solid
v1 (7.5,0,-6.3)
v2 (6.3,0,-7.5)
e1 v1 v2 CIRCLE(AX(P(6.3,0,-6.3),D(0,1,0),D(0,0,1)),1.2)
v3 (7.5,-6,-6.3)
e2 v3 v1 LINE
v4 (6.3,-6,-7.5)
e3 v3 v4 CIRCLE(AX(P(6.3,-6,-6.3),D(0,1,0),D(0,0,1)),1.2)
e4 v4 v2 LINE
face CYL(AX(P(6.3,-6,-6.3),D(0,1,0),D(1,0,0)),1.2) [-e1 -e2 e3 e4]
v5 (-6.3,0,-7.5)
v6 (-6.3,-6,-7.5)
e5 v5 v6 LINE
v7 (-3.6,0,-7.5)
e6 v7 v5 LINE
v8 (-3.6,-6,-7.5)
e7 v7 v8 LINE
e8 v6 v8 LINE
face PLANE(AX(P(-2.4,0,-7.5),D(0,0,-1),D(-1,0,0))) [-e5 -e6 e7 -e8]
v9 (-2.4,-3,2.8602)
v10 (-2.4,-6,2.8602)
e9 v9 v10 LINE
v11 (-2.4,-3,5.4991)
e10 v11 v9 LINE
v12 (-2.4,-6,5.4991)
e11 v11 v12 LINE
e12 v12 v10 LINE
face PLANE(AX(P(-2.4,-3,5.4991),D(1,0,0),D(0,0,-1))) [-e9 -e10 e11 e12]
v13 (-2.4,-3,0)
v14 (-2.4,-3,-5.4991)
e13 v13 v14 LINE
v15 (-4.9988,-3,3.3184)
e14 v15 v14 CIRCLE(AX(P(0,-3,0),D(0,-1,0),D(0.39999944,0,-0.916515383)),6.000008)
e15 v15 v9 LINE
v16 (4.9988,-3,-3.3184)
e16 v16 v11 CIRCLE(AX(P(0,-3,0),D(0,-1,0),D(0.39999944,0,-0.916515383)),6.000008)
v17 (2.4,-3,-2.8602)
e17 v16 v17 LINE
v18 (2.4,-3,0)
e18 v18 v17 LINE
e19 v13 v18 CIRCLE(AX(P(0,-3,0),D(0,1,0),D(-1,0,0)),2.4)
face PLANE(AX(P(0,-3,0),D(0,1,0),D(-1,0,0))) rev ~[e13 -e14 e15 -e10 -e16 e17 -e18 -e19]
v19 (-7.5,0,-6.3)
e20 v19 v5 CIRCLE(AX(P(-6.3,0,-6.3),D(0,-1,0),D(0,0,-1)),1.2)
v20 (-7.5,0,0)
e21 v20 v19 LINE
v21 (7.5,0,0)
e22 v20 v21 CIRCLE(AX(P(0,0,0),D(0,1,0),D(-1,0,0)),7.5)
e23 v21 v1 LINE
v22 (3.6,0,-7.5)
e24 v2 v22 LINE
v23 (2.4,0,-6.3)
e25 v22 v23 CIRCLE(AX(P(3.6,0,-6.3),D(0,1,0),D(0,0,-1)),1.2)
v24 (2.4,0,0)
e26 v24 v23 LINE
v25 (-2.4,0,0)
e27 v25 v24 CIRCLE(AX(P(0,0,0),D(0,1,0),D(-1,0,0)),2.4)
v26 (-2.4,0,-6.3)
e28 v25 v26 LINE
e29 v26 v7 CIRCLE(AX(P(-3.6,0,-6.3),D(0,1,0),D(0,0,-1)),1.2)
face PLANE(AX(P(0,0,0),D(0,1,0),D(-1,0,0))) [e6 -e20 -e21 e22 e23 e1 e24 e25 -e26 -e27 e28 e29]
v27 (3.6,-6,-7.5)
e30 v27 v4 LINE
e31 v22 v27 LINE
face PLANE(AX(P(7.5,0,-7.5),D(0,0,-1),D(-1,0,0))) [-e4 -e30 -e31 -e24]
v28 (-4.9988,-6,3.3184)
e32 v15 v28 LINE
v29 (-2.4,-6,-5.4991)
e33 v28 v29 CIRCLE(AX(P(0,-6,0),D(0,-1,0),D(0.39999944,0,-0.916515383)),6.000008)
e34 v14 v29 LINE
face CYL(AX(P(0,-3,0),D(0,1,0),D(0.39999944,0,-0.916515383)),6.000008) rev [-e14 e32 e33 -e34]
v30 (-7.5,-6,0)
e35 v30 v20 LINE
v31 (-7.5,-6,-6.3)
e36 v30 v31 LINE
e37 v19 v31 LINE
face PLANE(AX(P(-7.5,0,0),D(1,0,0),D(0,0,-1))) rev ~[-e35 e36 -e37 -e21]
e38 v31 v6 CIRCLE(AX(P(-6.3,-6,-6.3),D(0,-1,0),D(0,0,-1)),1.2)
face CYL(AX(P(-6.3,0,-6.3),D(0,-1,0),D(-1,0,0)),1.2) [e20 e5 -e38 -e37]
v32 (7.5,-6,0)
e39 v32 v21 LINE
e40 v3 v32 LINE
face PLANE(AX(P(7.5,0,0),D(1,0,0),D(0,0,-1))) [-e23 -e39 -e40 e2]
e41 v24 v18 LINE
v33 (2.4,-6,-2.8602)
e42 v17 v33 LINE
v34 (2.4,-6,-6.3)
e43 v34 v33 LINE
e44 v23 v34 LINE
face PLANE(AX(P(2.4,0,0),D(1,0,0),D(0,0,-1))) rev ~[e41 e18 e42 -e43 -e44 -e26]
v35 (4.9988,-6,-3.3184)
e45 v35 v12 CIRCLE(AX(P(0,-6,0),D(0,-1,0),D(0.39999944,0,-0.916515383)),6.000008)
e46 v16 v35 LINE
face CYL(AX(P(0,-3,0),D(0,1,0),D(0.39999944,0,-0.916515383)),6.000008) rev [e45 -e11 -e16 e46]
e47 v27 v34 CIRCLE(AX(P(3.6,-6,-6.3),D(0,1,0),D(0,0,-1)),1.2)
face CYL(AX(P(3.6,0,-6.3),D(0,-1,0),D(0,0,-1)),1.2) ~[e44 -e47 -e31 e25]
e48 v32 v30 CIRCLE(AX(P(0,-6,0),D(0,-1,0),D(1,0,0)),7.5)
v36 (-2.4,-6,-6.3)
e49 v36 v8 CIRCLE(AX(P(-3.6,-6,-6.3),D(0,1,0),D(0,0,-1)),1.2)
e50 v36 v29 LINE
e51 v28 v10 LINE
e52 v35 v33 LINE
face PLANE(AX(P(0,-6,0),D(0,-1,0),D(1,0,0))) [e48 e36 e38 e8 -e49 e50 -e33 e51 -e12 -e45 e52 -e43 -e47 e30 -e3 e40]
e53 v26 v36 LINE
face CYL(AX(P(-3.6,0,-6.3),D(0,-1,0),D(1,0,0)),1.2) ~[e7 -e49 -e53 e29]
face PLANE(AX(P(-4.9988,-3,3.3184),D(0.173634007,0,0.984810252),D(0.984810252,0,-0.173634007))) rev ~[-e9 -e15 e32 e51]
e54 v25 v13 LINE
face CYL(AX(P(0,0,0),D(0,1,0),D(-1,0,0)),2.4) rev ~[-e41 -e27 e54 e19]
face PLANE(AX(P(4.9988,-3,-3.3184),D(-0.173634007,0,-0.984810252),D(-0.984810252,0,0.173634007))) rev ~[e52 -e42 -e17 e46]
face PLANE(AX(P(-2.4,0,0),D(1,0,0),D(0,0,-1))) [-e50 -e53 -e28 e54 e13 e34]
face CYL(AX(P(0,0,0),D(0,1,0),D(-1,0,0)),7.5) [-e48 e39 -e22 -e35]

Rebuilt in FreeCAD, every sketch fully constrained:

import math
import FreeCAD as App
import Part
import Sketcher
Q = App.Units.Quantity


def edges_at(feature, points):
    """Names of the edges that pass closest to the given points."""
    edges = feature.Shape.Edges
    near = lambda p: min(range(len(edges)), key=lambda i: edges[i].distToShape(Part.Vertex(*p))[0])
    return sorted({f"Edge{near(p) + 1}" for p in points})

doc = App.newDocument("Part")
params = doc.addObject("Spreadsheet::Sheet", "Params")
for row, (alias, value) in enumerate([
    ("sketch1_radius", "7.5 mm"),
    ("sketch1_radius2", "2.4 mm"),
    ("sketch1_height", "7.5 mm"),
    ("pad1_length", "3 mm"),
    ("sketch2_radius", "6 mm"),
    ("sketch2_radius2", "7.5 mm"),
    ("sketch2_width", "5.1 mm"),
    ("sketch2_height", "7.5 mm"),
    ("pad2_length", "3 mm"),
    ("fillet_radius", "1.2 mm"),
    ("fillet2_radius", "1.2 mm"),
    ("sketch3_radius", "6 mm"),
    ("pad3_length", "3 mm"),
], start=1):
    params.set(f"A{row}", alias)
    params.set(f"B{row}", "=" + value)
    params.setAlias(f"B{row}", alias)

body = doc.addObject("PartDesign::Body", "Body")

sketch1 = body.newObject("Sketcher::SketchObject", "Sketch")
sketch1.AttachmentSupport = (doc.getObject("XZ_Plane"), [""])
sketch1.MapMode = "FlatFace"
sketch1.addGeometry(Part.LineSegment(App.Vector(-7.5, -7.5, 0), App.Vector(-7.5, 0, 0)), False)
sketch1.addGeometry(Part.ArcOfCircle(Part.Circle(App.Vector(0, 0, 0), App.Vector(0, 0, 1), 7.5), math.radians(0), math.radians(180)), False)
sketch1.addGeometry(Part.LineSegment(App.Vector(7.5, 0, 0), App.Vector(7.5, -7.5, 0)), False)
sketch1.addGeometry(Part.LineSegment(App.Vector(7.5, -7.5, 0), App.Vector(2.4, -7.5, 0)), False)
sketch1.addGeometry(Part.LineSegment(App.Vector(2.4, -7.5, 0), App.Vector(2.4, 0, 0)), False)
sketch1.addGeometry(Part.ArcOfCircle(Part.Circle(App.Vector(0, 0, 0), App.Vector(0, 0, 1), 2.4), math.radians(0), math.radians(180)), False)
sketch1.addGeometry(Part.LineSegment(App.Vector(-2.4, 0, 0), App.Vector(-2.4, -7.5, 0)), False)
sketch1.addGeometry(Part.LineSegment(App.Vector(-2.4, -7.5, 0), App.Vector(-7.5, -7.5, 0)), False)
sketch1.addConstraint(Sketcher.Constraint("Tangent", 0, 2, 1, 2))
sketch1.addConstraint(Sketcher.Constraint("Tangent", 1, 1, 2, 1))
sketch1.addConstraint(Sketcher.Constraint("Coincident", 2, 2, 3, 1))
sketch1.addConstraint(Sketcher.Constraint("Coincident", 3, 2, 4, 1))
sketch1.addConstraint(Sketcher.Constraint("Tangent", 4, 2, 5, 1))
sketch1.addConstraint(Sketcher.Constraint("Tangent", 5, 2, 6, 1))
sketch1.addConstraint(Sketcher.Constraint("Coincident", 6, 2, 7, 1))
sketch1.addConstraint(Sketcher.Constraint("Coincident", 7, 2, 0, 1))
sketch1.addConstraint(Sketcher.Constraint("Vertical", 0))
sketch1.addConstraint(Sketcher.Constraint("Vertical", 2))
sketch1.addConstraint(Sketcher.Constraint("Horizontal", 3))
sketch1.addConstraint(Sketcher.Constraint("Vertical", 4))
sketch1.addConstraint(Sketcher.Constraint("Vertical", 6))
sketch1.addConstraint(Sketcher.Constraint("Horizontal", 7))
sketch1.addConstraint(Sketcher.Constraint("Coincident", 1, 3, -1, 1))
sketch1.addConstraint(Sketcher.Constraint("Coincident", 5, 3, -1, 1))
sketch1.addConstraint(Sketcher.Constraint("Horizontal", 3, 2, 6, 2))
sketch1.addConstraint(Sketcher.Constraint("Radius", 1, Q("7.5 mm")))
sketch1.addConstraint(Sketcher.Constraint("Radius", 5, Q("2.4 mm")))
sketch1.addConstraint(Sketcher.Constraint("DistanceY", 0, 1, 0, 2, Q("7.5 mm")))
sketch1.setExpression("Constraints[17]", "Params.sketch1_radius")
sketch1.setExpression("Constraints[18]", "Params.sketch1_radius2")
sketch1.setExpression("Constraints[19]", "Params.sketch1_height")
pad1 = body.newObject("PartDesign::Pad", "Pad")
pad1.Profile = sketch1
pad1.setExpression("Length", "Params.pad1_length")

sketch2 = body.newObject("Sketcher::SketchObject", "Sketch001")
sketch2.AttachmentSupport = (doc.getObject("XZ_Plane"), [""])
sketch2.MapMode = "FlatFace"
sketch2.AttachmentOffset = App.Placement(App.Vector(0, 0, 3), App.Rotation())
sketch2.addGeometry(Part.LineSegment(App.Vector(7.5, -7.5, 0), App.Vector(7.5, 0, 0)), False)
sketch2.addGeometry(Part.ArcOfCircle(Part.Circle(App.Vector(0, 0, 0), App.Vector(0, 0, 1), 7.5), math.radians(0), math.radians(180)), False)
sketch2.addGeometry(Part.LineSegment(App.Vector(-7.5, 0, 0), App.Vector(-7.5, -7.5, 0)), False)
sketch2.addGeometry(Part.LineSegment(App.Vector(-7.5, -7.5, 0), App.Vector(-2.4, -7.5, 0)), False)
sketch2.addGeometry(Part.LineSegment(App.Vector(-2.4, -7.5, 0), App.Vector(-2.4, -5.5, 0)), False)
sketch2.addGeometry(Part.ArcOfCircle(Part.Circle(App.Vector(0, 0, 0), App.Vector(0, 0, 1), 6), math.radians(-66), math.radians(246)), False)
sketch2.addGeometry(Part.LineSegment(App.Vector(2.4, -5.5, 0), App.Vector(2.4, -7.5, 0)), False)
sketch2.addGeometry(Part.LineSegment(App.Vector(2.4, -7.5, 0), App.Vector(7.5, -7.5, 0)), False)
sketch2.addConstraint(Sketcher.Constraint("Tangent", 0, 2, 1, 1))
sketch2.addConstraint(Sketcher.Constraint("Tangent", 1, 2, 2, 1))
sketch2.addConstraint(Sketcher.Constraint("Coincident", 2, 2, 3, 1))
sketch2.addConstraint(Sketcher.Constraint("Coincident", 3, 2, 4, 1))
sketch2.addConstraint(Sketcher.Constraint("Coincident", 4, 2, 5, 2))
sketch2.addConstraint(Sketcher.Constraint("Coincident", 5, 1, 6, 1))
sketch2.addConstraint(Sketcher.Constraint("Coincident", 6, 2, 7, 1))
sketch2.addConstraint(Sketcher.Constraint("Coincident", 7, 2, 0, 1))
sketch2.addConstraint(Sketcher.Constraint("Vertical", 0))
sketch2.addConstraint(Sketcher.Constraint("Vertical", 2))
sketch2.addConstraint(Sketcher.Constraint("Horizontal", 3))
sketch2.addConstraint(Sketcher.Constraint("Vertical", 4))
sketch2.addConstraint(Sketcher.Constraint("Vertical", 6))
sketch2.addConstraint(Sketcher.Constraint("Horizontal", 7))
sketch2.addConstraint(Sketcher.Constraint("Coincident", 1, 3, -1, 1))
sketch2.addConstraint(Sketcher.Constraint("Coincident", 5, 3, -1, 1))
sketch2.addConstraint(Sketcher.Constraint("Symmetric", 3, 2, 6, 2, -2))
sketch2.addConstraint(Sketcher.Constraint("Radius", 5, Q("6 mm")))
sketch2.addConstraint(Sketcher.Constraint("Radius", 1, Q("7.5 mm")))
sketch2.addConstraint(Sketcher.Constraint("DistanceX", 3, 1, 3, 2, Q("5.1 mm")))
sketch2.addConstraint(Sketcher.Constraint("DistanceY", 0, 1, 0, 2, Q("7.5 mm")))
sketch2.setExpression("Constraints[17]", "Params.sketch2_radius")
sketch2.setExpression("Constraints[18]", "Params.sketch2_radius2")
sketch2.setExpression("Constraints[19]", "Params.sketch2_width")
sketch2.setExpression("Constraints[20]", "Params.sketch2_height")
pad2 = body.newObject("PartDesign::Pad", "Pad001")
pad2.Profile = sketch2
pad2.setExpression("Length", "Params.pad2_length")
doc.recompute()

fillet = body.newObject("PartDesign::Fillet", "Fillet")
fillet.Base = (pad2, edges_at(pad2, [(7.5, -3, -7.5)]))
fillet.setExpression("Radius", "Params.fillet_radius")
doc.recompute()

fillet2 = body.newObject("PartDesign::Fillet", "Fillet001")
fillet2.Base = (fillet, edges_at(fillet, [(2.4, -3, -7.5), (-2.4, -3, -7.5), (-7.5, -3, -7.5)]))
fillet2.setExpression("Radius", "Params.fillet2_radius")

sketch3 = body.newObject("Sketcher::SketchObject", "Sketch002")
sketch3.AttachmentSupport = (doc.getObject("XZ_Plane"), [""])
sketch3.MapMode = "FlatFace"
sketch3.AttachmentOffset = App.Placement(App.Vector(0, 0, 3), App.Rotation())
sketch3.addGeometry(Part.LineSegment(App.Vector(2.4, -2.9, 0), App.Vector(2.4, -5.5, 0)), False)
sketch3.addGeometry(Part.ArcOfCircle(Part.Circle(App.Vector(0, 0, 0), App.Vector(0, 0, 1), 6), math.radians(-66), math.radians(-34)), False)
sketch3.addGeometry(Part.LineSegment(App.Vector(5, -3.3, 0), App.Vector(2.4, -2.9, 0)), False)
sketch3.addGeometry(Part.LineSegment(App.Vector(-2.4, 2.9, 0), App.Vector(-2.4, 5.5, 0)), False)
sketch3.addGeometry(Part.ArcOfCircle(Part.Circle(App.Vector(0, 0, 0), App.Vector(0, 0, 1), 6), math.radians(114), math.radians(146)), False)
sketch3.addGeometry(Part.LineSegment(App.Vector(-5, 3.3, 0), App.Vector(-2.4, 2.9, 0)), False)
sketch3.addConstraint(Sketcher.Constraint("Coincident", 0, 2, 1, 1))
sketch3.addConstraint(Sketcher.Constraint("Coincident", 1, 2, 2, 1))
sketch3.addConstraint(Sketcher.Constraint("Coincident", 2, 2, 0, 1))
sketch3.addConstraint(Sketcher.Constraint("Coincident", 3, 2, 4, 1))
sketch3.addConstraint(Sketcher.Constraint("Coincident", 4, 2, 5, 1))
sketch3.addConstraint(Sketcher.Constraint("Coincident", 5, 2, 3, 1))
sketch3.addConstraint(Sketcher.Constraint("Vertical", 0))
sketch3.addConstraint(Sketcher.Constraint("Vertical", 3))
sketch3.addConstraint(Sketcher.Constraint("Coincident", 1, 3, -1, 1))
sketch3.addConstraint(Sketcher.Constraint("Coincident", 4, 3, -1, 1))
sketch3.addConstraint(Sketcher.Constraint("Equal", 1, 4))
sketch3.addConstraint(Sketcher.Constraint("Symmetric", 2, 2, 5, 2, -1, 1))
sketch3.addConstraint(Sketcher.Constraint("Parallel", 2, 5))
sketch3.addConstraint(Sketcher.Constraint("Radius", 1, Q("6 mm")))
sketch3.addConstraint(Sketcher.Constraint("Angle", 2, Q("170.0008 deg")))
sketch3.addConstraint(Sketcher.Constraint("DistanceX", -1, 1, 0, 2, Q("2.4 mm")))
sketch3.addConstraint(Sketcher.Constraint("DistanceY", 0, 2, 0, 1, Q("2.639 mm")))
sketch3.setExpression("Constraints[13]", "Params.sketch3_radius")
pad3 = body.newObject("PartDesign::Pad", "Pad002")
pad3.Profile = sketch3
pad3.setExpression("Length", "Params.pad3_length")

doc.recompute()
